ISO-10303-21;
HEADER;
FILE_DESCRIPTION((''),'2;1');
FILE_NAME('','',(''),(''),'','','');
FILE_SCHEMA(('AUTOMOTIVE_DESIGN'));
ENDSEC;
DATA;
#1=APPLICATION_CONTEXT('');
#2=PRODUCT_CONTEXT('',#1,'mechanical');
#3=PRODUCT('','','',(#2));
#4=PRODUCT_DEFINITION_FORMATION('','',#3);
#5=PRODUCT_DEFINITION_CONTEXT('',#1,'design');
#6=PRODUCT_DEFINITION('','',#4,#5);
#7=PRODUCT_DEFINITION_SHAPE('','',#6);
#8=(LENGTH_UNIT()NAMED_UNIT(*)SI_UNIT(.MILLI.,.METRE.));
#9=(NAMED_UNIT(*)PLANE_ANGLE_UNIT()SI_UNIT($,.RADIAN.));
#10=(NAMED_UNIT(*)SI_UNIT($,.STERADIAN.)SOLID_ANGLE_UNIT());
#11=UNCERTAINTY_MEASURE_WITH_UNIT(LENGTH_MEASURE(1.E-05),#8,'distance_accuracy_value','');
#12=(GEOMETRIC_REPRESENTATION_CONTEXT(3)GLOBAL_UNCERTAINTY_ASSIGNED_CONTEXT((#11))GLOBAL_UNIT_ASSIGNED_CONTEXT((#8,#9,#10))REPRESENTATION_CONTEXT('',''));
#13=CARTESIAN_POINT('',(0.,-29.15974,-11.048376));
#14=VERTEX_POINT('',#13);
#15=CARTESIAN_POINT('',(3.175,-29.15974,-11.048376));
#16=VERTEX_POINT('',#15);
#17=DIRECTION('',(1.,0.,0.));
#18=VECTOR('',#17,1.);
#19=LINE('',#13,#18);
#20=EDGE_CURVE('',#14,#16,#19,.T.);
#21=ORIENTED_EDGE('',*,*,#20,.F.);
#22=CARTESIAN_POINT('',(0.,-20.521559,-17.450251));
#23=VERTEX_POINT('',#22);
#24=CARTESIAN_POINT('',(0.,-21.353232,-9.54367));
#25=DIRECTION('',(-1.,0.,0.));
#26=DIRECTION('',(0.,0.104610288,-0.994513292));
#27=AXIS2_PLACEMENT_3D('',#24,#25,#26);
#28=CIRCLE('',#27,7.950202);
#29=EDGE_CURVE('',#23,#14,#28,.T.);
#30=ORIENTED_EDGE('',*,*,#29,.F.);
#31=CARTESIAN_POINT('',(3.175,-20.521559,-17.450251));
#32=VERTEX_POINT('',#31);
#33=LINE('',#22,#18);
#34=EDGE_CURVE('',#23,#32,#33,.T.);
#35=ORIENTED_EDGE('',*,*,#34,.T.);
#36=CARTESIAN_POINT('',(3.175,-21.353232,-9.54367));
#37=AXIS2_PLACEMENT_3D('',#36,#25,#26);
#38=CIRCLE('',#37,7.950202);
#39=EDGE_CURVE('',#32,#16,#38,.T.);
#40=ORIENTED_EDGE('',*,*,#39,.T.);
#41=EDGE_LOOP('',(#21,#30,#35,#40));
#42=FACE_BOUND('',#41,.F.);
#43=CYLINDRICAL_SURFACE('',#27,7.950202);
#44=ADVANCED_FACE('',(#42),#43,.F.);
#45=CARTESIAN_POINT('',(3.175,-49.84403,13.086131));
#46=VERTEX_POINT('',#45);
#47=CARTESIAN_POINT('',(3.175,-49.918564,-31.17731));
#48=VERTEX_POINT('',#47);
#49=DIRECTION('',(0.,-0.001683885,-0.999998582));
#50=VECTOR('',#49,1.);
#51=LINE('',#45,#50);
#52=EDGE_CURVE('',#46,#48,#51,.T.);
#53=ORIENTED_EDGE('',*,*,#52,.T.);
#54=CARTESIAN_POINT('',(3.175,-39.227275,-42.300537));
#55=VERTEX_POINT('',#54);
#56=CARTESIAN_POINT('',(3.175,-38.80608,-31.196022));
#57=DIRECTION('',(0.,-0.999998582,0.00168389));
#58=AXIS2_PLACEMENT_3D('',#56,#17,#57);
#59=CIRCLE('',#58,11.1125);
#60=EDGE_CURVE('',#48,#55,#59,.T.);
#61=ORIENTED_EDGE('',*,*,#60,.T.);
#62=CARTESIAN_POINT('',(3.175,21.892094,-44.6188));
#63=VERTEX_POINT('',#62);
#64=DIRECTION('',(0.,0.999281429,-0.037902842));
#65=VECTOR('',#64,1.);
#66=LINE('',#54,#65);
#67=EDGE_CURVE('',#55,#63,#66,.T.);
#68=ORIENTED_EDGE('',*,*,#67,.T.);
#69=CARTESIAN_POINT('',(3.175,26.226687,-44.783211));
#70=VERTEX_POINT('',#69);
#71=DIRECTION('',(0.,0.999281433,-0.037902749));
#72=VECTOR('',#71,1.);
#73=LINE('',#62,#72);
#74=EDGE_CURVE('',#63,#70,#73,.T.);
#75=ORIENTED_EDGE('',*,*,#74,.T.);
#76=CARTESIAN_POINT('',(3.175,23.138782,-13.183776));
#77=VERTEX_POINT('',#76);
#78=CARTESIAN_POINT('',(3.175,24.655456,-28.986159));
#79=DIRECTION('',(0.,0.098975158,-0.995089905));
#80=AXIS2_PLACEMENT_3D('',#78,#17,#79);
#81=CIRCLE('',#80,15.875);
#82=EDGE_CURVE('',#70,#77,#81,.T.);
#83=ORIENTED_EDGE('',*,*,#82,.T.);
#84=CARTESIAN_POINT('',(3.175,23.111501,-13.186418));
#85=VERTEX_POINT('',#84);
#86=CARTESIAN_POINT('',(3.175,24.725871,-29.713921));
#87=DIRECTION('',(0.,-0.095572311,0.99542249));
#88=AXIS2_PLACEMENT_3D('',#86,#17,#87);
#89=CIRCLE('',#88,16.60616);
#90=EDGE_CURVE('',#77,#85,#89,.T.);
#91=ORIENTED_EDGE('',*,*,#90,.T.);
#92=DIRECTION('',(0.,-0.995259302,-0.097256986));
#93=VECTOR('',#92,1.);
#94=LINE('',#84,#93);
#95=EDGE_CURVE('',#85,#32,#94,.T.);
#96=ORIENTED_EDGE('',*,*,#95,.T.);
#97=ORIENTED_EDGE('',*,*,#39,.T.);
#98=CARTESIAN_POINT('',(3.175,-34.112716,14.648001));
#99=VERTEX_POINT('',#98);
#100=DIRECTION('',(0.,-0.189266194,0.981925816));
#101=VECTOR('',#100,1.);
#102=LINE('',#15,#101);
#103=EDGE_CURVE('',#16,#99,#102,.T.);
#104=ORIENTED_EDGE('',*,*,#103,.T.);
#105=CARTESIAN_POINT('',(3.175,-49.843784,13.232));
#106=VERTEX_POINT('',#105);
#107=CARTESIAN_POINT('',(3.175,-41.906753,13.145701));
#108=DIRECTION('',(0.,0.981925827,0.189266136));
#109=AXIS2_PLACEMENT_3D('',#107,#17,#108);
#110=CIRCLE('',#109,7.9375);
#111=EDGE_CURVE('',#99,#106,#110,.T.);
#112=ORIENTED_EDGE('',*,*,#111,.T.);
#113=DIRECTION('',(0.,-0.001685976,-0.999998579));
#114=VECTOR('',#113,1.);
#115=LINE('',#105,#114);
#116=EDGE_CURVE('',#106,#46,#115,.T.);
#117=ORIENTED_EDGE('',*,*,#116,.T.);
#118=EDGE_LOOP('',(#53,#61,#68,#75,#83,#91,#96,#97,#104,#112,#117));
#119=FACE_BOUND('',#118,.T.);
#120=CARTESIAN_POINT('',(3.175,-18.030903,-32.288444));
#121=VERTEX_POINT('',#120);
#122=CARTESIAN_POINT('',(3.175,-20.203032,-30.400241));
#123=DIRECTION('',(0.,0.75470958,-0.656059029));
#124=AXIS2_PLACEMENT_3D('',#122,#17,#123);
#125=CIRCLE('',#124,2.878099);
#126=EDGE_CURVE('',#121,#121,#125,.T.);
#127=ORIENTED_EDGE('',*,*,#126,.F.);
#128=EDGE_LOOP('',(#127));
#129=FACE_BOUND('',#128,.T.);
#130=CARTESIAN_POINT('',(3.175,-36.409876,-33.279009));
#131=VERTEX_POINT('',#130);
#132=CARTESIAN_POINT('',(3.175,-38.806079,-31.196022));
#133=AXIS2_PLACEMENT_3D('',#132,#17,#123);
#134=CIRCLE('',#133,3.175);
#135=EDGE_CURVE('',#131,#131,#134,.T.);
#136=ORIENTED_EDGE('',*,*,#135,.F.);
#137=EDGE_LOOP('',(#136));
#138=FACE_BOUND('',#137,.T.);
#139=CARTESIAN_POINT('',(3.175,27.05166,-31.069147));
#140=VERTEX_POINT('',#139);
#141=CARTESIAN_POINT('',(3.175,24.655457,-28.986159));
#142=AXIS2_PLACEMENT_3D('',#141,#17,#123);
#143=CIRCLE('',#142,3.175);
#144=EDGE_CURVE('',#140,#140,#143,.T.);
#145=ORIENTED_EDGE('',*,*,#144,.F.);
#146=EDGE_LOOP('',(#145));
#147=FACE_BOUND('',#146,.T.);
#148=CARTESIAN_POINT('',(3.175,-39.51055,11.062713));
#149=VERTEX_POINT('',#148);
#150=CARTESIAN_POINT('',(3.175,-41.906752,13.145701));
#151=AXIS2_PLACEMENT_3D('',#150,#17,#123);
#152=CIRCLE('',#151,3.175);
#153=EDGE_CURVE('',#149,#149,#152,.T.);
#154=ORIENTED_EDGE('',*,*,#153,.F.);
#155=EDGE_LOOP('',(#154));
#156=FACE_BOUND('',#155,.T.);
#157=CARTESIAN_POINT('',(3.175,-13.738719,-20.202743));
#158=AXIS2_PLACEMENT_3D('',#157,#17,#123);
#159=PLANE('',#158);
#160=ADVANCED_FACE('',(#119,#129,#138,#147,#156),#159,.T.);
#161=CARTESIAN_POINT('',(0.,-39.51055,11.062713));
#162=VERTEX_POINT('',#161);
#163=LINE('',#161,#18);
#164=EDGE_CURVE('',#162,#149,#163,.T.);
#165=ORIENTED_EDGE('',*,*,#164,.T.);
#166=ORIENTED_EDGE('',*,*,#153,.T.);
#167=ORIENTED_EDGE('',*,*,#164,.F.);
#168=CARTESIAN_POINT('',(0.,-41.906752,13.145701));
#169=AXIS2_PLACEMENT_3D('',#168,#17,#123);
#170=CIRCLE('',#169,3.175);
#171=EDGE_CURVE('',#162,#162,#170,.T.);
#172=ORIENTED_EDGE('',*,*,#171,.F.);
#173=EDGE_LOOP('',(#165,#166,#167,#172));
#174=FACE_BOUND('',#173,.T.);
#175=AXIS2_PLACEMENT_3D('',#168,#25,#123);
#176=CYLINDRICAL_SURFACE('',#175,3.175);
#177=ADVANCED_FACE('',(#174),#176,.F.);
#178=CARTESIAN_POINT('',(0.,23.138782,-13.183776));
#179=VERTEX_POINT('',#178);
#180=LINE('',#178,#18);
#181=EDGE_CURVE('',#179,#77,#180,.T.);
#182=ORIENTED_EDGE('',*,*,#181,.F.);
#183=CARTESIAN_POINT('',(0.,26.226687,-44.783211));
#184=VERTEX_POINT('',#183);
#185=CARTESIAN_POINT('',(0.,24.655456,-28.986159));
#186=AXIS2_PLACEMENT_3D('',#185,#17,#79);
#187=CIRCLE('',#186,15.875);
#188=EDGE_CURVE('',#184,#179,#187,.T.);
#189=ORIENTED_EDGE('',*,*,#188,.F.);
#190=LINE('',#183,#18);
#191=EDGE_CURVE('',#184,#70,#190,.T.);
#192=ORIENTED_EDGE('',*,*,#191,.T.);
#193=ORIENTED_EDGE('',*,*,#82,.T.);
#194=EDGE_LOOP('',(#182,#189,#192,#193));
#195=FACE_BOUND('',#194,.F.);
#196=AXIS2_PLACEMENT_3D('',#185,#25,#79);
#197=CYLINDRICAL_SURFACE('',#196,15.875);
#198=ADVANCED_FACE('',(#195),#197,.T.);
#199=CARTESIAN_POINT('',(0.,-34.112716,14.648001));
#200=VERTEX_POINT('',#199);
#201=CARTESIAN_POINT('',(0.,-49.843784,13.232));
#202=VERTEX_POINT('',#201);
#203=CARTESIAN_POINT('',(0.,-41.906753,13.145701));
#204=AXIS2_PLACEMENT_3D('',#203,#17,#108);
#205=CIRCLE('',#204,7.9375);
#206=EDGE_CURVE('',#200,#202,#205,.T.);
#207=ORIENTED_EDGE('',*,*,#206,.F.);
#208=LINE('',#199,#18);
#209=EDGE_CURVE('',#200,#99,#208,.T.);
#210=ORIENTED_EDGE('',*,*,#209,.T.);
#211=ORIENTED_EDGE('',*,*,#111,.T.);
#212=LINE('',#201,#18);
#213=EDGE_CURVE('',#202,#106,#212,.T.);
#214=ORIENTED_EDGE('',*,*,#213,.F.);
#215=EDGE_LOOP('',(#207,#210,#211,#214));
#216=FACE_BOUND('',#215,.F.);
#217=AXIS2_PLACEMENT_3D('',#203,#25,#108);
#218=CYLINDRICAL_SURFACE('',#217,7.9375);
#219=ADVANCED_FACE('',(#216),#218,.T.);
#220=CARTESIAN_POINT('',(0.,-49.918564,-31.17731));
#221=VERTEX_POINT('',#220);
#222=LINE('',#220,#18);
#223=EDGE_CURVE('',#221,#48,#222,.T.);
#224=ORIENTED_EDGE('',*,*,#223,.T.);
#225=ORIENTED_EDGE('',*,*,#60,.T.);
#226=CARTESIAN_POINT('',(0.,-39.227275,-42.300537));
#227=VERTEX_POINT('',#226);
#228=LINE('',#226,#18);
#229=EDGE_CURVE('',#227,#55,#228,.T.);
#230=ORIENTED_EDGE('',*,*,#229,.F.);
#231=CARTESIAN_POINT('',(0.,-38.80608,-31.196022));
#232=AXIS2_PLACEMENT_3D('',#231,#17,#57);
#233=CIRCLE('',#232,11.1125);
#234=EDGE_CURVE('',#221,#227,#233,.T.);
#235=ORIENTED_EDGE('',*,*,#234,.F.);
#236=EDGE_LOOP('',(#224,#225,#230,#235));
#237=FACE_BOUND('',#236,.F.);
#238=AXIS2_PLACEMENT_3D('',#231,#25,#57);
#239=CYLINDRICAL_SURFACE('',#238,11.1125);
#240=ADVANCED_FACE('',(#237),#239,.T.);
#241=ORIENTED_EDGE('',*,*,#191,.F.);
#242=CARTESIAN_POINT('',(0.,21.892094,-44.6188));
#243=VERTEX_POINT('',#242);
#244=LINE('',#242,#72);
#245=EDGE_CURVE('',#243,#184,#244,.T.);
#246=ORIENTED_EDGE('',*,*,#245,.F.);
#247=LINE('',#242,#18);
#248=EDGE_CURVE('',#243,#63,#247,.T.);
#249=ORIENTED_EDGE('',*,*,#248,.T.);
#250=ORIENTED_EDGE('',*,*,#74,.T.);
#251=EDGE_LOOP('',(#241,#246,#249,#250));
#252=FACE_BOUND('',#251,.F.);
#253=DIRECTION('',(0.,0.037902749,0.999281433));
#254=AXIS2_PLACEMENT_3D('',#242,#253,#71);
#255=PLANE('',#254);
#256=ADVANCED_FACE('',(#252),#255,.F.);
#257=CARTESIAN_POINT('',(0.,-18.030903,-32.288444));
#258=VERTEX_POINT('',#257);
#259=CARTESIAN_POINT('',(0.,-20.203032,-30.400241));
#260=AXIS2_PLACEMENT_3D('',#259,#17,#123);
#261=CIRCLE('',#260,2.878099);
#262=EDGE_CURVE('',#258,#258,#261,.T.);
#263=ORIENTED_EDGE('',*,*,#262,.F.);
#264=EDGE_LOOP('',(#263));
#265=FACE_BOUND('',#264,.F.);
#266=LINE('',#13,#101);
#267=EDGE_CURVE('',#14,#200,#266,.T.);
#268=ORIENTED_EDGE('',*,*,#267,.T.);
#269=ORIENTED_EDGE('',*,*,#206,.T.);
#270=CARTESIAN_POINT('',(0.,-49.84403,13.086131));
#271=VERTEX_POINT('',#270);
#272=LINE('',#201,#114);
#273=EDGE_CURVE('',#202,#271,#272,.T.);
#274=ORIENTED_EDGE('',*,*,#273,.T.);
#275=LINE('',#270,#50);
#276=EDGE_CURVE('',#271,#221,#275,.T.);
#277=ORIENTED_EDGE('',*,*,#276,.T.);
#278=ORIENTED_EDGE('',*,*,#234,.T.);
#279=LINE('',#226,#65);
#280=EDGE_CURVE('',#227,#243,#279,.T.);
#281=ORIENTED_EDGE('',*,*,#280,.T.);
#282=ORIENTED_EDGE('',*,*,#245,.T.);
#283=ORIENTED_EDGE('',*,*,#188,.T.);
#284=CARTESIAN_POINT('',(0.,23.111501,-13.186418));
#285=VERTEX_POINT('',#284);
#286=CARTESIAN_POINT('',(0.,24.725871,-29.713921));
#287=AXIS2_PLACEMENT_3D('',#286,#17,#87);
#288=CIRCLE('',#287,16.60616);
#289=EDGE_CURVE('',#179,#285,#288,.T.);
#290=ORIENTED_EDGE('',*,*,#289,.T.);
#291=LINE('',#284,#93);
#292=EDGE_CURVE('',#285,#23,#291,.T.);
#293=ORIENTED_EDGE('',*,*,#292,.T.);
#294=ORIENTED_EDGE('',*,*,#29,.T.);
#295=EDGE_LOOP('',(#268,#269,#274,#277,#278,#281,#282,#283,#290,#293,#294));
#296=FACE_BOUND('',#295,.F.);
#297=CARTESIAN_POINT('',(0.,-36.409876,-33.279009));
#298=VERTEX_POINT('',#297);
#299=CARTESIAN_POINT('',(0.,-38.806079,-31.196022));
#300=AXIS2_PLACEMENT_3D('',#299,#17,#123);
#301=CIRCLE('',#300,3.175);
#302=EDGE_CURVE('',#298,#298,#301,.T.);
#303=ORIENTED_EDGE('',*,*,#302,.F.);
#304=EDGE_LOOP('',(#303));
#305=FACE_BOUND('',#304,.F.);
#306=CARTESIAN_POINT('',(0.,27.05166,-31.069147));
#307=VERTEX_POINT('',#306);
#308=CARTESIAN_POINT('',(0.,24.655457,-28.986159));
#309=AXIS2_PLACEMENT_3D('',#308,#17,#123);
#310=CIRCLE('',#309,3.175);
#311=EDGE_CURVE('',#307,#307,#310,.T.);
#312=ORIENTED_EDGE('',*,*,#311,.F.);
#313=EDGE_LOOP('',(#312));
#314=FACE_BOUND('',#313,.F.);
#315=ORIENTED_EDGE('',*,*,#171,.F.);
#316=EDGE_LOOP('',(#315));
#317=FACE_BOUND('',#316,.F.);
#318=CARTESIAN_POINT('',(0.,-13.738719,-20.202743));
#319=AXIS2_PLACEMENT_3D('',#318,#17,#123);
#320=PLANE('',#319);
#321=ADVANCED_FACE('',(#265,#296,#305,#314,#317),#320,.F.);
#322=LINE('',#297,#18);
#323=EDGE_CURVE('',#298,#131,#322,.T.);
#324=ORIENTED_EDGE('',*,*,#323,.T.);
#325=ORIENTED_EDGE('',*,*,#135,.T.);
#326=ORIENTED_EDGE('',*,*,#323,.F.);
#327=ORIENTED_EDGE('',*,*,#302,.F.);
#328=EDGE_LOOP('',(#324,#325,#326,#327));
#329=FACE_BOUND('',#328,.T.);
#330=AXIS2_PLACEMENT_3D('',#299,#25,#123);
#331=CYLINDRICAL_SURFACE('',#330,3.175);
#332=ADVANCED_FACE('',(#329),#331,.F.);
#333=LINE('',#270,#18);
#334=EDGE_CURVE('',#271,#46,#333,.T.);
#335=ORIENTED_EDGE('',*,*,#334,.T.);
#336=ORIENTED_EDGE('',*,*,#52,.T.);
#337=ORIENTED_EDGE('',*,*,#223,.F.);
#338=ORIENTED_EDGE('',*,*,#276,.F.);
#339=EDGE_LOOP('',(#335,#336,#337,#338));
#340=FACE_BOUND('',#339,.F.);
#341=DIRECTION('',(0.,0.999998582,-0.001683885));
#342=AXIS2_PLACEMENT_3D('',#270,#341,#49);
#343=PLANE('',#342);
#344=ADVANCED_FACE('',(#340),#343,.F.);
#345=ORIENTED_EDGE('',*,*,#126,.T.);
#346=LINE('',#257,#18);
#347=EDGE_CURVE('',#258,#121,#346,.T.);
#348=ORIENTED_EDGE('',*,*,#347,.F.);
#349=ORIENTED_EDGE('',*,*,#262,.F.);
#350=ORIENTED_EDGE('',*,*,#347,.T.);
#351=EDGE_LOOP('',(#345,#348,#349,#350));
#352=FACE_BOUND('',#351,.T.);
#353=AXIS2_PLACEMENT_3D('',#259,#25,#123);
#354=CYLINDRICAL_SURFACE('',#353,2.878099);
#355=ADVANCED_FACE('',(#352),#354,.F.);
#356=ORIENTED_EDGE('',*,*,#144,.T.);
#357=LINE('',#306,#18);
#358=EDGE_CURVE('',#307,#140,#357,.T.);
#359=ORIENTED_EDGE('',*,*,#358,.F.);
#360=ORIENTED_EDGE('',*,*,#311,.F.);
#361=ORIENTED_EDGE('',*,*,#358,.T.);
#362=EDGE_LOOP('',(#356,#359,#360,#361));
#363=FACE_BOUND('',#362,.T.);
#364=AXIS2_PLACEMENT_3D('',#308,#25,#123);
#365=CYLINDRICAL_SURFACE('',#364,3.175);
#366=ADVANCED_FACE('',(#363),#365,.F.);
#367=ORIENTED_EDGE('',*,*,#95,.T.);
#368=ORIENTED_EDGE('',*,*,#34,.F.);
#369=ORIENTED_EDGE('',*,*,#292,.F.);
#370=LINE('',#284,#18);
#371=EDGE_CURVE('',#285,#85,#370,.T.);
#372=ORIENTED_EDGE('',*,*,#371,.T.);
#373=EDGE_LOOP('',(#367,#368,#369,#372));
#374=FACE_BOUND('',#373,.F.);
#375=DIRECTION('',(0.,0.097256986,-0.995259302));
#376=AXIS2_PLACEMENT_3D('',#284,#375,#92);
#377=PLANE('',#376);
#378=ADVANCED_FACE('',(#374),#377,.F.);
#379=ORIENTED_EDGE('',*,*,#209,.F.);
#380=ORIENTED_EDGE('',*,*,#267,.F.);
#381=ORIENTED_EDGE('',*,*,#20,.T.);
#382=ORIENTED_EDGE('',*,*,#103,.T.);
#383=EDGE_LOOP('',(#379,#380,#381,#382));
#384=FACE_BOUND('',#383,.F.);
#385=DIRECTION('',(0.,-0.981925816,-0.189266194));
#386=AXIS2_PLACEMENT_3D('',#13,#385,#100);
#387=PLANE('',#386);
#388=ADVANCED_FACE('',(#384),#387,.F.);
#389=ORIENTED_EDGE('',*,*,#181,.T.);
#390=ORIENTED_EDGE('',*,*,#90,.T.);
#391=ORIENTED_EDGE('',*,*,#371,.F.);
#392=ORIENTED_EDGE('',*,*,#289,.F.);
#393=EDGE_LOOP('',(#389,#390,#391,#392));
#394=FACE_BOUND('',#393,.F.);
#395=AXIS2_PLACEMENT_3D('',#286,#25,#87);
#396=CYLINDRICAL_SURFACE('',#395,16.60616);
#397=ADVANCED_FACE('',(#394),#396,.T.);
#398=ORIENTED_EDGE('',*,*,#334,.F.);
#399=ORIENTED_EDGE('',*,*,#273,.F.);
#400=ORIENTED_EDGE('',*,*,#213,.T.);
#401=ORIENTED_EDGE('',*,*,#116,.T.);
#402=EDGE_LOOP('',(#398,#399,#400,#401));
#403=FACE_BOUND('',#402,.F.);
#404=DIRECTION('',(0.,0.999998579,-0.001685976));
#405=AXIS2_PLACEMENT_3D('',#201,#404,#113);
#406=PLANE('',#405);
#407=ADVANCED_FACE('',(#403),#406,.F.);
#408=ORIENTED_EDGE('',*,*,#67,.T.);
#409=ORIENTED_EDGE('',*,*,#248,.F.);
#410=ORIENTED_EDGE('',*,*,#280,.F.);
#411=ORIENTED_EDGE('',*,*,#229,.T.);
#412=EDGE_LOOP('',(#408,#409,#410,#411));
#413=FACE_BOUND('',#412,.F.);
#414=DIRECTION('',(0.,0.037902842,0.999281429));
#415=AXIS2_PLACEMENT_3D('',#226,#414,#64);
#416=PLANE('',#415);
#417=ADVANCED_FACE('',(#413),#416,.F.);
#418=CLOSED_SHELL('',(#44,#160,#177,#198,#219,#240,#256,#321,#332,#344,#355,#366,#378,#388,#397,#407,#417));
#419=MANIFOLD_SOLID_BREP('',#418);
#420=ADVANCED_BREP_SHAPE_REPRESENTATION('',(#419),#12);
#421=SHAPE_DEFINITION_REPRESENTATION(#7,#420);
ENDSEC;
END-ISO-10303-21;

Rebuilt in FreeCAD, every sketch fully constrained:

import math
import FreeCAD as App
import Part
import Sketcher
Q = App.Units.Quantity

doc = App.newDocument("Part")
body = doc.addObject("PartDesign::Body", "Body")

# Sketch on YZ plane
sketch1 = doc.addObject("Sketcher::SketchObject", "Sketch")
body.addObject(sketch1)
sketch1.AttachmentSupport = (doc.YZ_Plane, [""])
sketch1.MapMode = "FlatFace"
sketch1.addGeometry([
    Part.LineSegment(App.Vector(-0.683, -22.206, 0), App.Vector(-21.28, -6.062, 0)),  # 0
    Part.ArcOfCircle(Part.Circle(App.Vector(-26.176, -12.31, 0), App.Vector(0, 0, 1), 7.938), math.radians(52), math.radians(220)),  # 1
    Part.LineSegment(App.Vector(-32.223, -17.452, 0), App.Vector(-32.128, -17.562, 0)),  # 2
    Part.LineSegment(App.Vector(-32.128, -17.562, 0), App.Vector(-3.144, -51.017, 0)),  # 3
    Part.ArcOfCircle(Part.Circle(App.Vector(5.255, -43.74, 0), App.Vector(0, 0, 1), 11.112), math.radians(-139), math.radians(-51)),  # 4
    Part.LineSegment(App.Vector(12.222, -52.397, 0), App.Vector(59.87, -14.049, 0)),  # 5
    Part.LineSegment(App.Vector(59.87, -14.049, 0), App.Vector(63.249, -11.329, 0)),  # 6
    Part.ArcOfCircle(Part.Circle(App.Vector(51.7, -0.438, 0), App.Vector(0, 0, 1), 15.875), math.radians(-43), math.radians(136)),  # 7
    Part.ArcOfCircle(Part.Circle(App.Vector(52.23, -0.941, 0), App.Vector(0, 0, 1), 16.606), math.radians(136.48), math.radians(136.58)),  # 8
    Part.LineSegment(App.Vector(40.169, 10.473, 0), App.Vector(10.036, -21.371, 0)),  # 9
    Part.ArcOfCircle(Part.Circle(App.Vector(4.221, -15.949, 0), App.Vector(0, 0, 1), 7.95), math.radians(-128), math.radians(-43)),  # 10
    Part.Circle(App.Vector(5.255, -43.74, 0), App.Vector(0, 0, 1), 3.175),  # 11
    Part.Circle(App.Vector(18.772, -30.935, 0), App.Vector(0, 0, 1), 2.878),  # 12
    Part.Circle(App.Vector(-26.176, -12.31, 0), App.Vector(0, 0, 1), 3.175),  # 13
    Part.Circle(App.Vector(51.7, -0.438, 0), App.Vector(0, 0, 1), 3.175),  # 14
], False)
sketch1.addConstraint([
    Sketcher.Constraint("Tangent", 0, 2, 1, 1),
    Sketcher.Constraint("Coincident", 1, 2, 2, 1),
    Sketcher.Constraint("Coincident", 2, 2, 3, 1),
    Sketcher.Constraint("Tangent", 3, 2, 4, 1),
    Sketcher.Constraint("Tangent", 4, 2, 5, 1),
    Sketcher.Constraint("Coincident", 5, 2, 6, 1),
    Sketcher.Constraint("Coincident", 6, 2, 7, 1),
    Sketcher.Constraint("Coincident", 7, 2, 8, 1),
    Sketcher.Constraint("Coincident", 8, 2, 9, 1),
    Sketcher.Constraint("Coincident", 9, 2, 10, 2),
    Sketcher.Constraint("Tangent", 10, 1, 0, 1),
    Sketcher.Constraint("Coincident", 11, 3, 4, 3),
    Sketcher.Constraint("Coincident", 13, 3, 1, 3),
    Sketcher.Constraint("Coincident", 14, 3, 7, 3),
    Sketcher.Constraint("Equal", 11, 13),
    Sketcher.Constraint("Equal", 13, 14),
    Sketcher.Constraint("Parallel", 5, 6),
    Sketcher.Constraint("Diameter", 11, Q("0.25 in")),
    Sketcher.Constraint("Radius", 1, Q("0.3125 in")),
    Sketcher.Constraint("Radius", 4, Q("0.4375 in")),
    Sketcher.Constraint("Radius", 7, Q("0.625 in")),
    Sketcher.Constraint("Radius", 10, Q("0.3130001 in")),
    Sketcher.Constraint("Diameter", 12, Q("5.756198 mm")),
    Sketcher.Constraint("Radius", 8, Q("16.60616 mm")),
    Sketcher.Constraint("DistanceY", 7, 3, -1, 1, Q("0.438101 mm")),
    Sketcher.Constraint("DistanceX", 1, 2, -1, 1, Q("32.223099 mm")),
    Sketcher.Constraint("DistanceY", 2, 2, -1, 1, Q("17.5618 mm")),
    Sketcher.Constraint("DistanceY", 4, 3, 1, 3, Q("31.430899 mm")),
    Sketcher.Constraint("DistanceX", 8, 3, 5, 2, Q("7.639802 mm")),
    Sketcher.Constraint("DistanceX", 7, 3, 5, 2, Q("8.170399 mm")),
    Sketcher.Constraint("DistanceX", 8, 2, 14, 3, Q("11.530801 mm")),
    Sketcher.Constraint("DistanceY", 4, 2, 9, 2, Q("31.026802 mm")),
    Sketcher.Constraint("DistanceY", 10, 1, 9, 2, Q("0.8356 mm")),
    Sketcher.Constraint("Distance", 2, Q("0.145869 mm")),
    Sketcher.Constraint("Distance", 5, Q("61.163319 mm")),
    Sketcher.Constraint("Distance", 6, Q("4.33771 mm")),
    Sketcher.Constraint("DistanceX", 1, 3, -1, 1, Q("26.176328 mm")),
    Sketcher.Constraint("DistanceY", 1, 3, -1, 1, Q("12.30952 mm")),
    Sketcher.Constraint("DistanceX", -1, 1, 7, 2, Q("40.187851 mm")),
    Sketcher.Constraint("DistanceY", -1, 1, 7, 2, Q("10.493082 mm")),
    Sketcher.Constraint("DistanceX", 10, 3, 4, 3, Q("1.033389 mm")),
    Sketcher.Constraint("DistanceX", 11, 3, 12, 3, Q("13.517819 mm")),
    Sketcher.Constraint("DistanceY", 11, 3, 12, 3, Q("12.80528 mm")),
])
pad1 = doc.addObject("PartDesign::Pad", "Pad")
body.addObject(pad1)
pad1.Profile = sketch1
pad1.Length = Q("0.125 in")
body2 = doc.addObject("PartDesign::Body", "Body001")
doc.recompute()

body.Placement = App.Placement(App.Vector(0, -14.075455, 5.262597), App.Rotation(App.Vector(-1, 0, 0), 41))
boolean = doc.addObject("PartDesign::Boolean", "Boolean")
body2.addObject(boolean)
boolean.Type = "Fuse"
boolean.addObjects([body])

doc.recompute()
